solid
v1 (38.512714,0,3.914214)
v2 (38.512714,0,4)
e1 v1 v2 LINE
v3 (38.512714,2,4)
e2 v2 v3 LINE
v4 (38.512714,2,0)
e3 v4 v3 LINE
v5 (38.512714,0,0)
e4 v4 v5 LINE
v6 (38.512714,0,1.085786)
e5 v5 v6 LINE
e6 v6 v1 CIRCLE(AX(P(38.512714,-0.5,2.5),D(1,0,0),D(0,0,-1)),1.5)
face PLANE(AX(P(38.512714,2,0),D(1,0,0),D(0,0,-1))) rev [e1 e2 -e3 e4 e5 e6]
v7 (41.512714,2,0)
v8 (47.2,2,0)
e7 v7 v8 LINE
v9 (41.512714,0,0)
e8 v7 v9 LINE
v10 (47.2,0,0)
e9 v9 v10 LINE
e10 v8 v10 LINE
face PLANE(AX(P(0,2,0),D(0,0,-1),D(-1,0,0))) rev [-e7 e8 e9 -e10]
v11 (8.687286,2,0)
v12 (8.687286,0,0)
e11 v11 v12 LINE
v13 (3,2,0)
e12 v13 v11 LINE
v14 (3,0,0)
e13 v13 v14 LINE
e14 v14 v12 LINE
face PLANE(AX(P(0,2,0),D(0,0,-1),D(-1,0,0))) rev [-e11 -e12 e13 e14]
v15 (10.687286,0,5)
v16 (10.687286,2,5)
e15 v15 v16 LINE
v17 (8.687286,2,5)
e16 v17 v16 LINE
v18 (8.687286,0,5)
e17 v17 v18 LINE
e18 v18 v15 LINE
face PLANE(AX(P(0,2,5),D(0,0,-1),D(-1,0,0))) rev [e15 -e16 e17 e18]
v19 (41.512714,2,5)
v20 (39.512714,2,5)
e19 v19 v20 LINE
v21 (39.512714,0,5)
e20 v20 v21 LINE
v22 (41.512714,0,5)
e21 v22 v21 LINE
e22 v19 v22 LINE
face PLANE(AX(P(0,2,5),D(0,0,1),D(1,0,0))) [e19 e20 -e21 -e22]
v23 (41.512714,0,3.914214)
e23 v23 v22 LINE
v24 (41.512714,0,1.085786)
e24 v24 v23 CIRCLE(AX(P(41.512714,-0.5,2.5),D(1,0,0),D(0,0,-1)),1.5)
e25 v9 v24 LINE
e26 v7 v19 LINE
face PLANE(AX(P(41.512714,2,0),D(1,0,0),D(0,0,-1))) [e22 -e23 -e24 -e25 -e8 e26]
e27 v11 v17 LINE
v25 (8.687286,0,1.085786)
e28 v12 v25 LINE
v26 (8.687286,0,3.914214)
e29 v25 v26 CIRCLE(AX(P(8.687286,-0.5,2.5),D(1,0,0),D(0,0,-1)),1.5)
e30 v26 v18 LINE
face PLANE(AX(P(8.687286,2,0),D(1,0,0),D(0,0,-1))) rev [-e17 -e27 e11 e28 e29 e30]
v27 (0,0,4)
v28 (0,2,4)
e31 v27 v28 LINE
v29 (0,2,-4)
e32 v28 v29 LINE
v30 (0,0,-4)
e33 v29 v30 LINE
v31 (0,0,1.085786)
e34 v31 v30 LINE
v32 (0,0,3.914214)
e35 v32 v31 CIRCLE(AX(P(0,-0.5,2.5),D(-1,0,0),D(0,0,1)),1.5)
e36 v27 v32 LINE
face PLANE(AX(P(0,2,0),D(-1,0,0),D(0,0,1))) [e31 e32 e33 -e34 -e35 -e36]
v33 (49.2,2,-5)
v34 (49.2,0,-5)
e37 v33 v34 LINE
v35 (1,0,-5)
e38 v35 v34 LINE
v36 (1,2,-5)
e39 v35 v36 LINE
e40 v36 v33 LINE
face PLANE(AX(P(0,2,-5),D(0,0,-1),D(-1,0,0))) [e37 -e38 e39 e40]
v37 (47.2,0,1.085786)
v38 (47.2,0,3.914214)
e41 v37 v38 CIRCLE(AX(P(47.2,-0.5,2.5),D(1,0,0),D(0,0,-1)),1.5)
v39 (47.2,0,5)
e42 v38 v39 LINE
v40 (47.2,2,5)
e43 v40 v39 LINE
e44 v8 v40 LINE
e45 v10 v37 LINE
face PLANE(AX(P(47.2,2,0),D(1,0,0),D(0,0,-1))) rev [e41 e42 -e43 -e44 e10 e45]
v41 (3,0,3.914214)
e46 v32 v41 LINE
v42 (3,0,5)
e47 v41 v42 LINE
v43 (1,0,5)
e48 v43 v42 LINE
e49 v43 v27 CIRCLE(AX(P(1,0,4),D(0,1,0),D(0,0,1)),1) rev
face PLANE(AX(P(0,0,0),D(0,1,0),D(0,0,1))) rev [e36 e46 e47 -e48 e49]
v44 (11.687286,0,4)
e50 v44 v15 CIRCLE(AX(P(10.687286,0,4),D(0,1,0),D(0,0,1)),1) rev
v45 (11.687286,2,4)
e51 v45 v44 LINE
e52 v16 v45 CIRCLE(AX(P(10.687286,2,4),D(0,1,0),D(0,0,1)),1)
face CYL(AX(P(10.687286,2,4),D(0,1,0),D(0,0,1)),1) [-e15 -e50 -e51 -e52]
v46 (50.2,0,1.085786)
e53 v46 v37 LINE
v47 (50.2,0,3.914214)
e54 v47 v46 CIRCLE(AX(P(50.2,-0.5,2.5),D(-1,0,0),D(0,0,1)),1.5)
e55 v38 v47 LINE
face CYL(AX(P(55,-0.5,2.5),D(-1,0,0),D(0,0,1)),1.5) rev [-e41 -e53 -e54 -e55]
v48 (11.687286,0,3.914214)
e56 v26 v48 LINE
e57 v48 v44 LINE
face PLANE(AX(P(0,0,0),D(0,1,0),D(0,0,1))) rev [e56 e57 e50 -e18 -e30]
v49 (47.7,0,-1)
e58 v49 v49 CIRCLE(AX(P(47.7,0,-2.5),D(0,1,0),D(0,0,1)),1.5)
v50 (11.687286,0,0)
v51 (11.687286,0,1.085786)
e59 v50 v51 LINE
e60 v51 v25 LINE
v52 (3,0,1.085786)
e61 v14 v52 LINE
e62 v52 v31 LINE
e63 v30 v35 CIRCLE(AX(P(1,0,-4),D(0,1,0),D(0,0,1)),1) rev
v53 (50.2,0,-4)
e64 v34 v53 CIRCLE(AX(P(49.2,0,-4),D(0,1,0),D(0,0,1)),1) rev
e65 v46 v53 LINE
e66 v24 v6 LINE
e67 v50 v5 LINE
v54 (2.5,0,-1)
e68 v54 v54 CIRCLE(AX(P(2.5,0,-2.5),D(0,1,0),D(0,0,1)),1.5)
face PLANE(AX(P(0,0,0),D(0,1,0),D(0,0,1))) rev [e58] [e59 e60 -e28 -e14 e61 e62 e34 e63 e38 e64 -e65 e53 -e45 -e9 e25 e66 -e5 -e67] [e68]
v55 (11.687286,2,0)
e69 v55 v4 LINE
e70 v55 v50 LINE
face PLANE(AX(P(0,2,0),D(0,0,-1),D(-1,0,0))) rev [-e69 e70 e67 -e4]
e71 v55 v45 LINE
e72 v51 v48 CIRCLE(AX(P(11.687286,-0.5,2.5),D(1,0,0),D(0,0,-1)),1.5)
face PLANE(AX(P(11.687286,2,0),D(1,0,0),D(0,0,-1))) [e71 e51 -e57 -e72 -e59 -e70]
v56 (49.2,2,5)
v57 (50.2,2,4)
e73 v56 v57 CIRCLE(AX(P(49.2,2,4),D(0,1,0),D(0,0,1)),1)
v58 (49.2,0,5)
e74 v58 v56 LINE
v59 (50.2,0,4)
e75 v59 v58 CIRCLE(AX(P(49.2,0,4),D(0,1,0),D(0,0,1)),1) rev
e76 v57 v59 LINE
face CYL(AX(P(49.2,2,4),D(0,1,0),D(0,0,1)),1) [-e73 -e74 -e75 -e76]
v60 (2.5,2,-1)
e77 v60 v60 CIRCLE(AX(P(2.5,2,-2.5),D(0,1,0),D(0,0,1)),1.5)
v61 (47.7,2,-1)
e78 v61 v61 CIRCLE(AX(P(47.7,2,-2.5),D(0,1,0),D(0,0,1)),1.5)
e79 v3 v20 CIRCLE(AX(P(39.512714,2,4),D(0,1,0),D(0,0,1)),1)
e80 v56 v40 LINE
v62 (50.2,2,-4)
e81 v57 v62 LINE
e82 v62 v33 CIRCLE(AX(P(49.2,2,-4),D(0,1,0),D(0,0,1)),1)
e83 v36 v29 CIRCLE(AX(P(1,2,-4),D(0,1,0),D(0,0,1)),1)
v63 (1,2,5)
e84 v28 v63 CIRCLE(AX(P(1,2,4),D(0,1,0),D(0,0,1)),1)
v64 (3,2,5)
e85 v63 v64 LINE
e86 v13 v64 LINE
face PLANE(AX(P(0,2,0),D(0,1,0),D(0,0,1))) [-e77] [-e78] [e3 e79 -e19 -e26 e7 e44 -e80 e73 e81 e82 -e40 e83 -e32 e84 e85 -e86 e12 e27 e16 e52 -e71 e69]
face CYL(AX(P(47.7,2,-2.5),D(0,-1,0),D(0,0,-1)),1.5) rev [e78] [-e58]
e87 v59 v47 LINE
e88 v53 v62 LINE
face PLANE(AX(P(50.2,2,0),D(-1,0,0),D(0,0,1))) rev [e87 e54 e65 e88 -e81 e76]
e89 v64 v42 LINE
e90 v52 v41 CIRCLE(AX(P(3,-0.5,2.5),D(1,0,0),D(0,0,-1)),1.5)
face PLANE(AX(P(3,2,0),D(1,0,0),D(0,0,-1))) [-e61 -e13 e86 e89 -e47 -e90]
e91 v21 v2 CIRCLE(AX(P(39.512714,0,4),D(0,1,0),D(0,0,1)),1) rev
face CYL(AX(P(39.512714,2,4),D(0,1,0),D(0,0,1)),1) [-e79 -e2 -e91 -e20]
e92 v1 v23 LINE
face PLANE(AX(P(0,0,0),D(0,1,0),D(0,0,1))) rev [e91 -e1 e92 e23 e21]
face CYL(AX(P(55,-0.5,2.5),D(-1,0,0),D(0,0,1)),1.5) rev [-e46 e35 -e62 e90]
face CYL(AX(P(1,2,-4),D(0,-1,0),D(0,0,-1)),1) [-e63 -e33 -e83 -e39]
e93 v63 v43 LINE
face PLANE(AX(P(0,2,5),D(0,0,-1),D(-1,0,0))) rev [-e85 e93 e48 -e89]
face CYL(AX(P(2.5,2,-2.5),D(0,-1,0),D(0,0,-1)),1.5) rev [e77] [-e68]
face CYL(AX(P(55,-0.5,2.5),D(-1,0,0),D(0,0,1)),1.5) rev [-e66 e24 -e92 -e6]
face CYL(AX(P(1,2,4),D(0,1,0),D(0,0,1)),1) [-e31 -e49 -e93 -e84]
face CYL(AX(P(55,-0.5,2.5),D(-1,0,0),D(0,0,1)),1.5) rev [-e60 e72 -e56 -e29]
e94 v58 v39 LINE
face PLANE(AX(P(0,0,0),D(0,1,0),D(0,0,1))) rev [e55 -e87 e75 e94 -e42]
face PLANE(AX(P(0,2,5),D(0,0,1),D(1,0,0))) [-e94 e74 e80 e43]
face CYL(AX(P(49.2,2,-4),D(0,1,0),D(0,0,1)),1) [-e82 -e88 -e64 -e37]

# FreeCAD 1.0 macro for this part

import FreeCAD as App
import Part
import Sketcher
from FreeCAD import Vector


def edges_at(feature, points):
    """Names of the edges that pass closest to the given points."""
    edges = feature.Shape.Edges
    near = lambda p: min(range(len(edges)), key=lambda i: edges[i].distToShape(Part.Vertex(*p))[0])
    return sorted({f"Edge{near(p) + 1}" for p in points})


def add_polygon(sketch, points):
    """Adds a closed chain of lines whose ends are joined by coincident constraints."""
    first, n = sketch.GeometryCount, len(points)
    for a, b in zip(points, points[1:] + points[:1]):
        sketch.addGeometry(Part.LineSegment(App.Vector(*a, 0), App.Vector(*b, 0)), False)
    for i in range(n):
        sketch.addConstraint(Sketcher.Constraint("Coincident", first + i, 2, first + (i + 1) % n, 1))

doc = App.newDocument("Part")
params = doc.addObject("Spreadsheet::Sheet", "Params")
for row, (alias, value) in enumerate([
    ("sketch1_diameter", "3 mm"),
    ("sketch1_width", "3 mm"),
    ("sketch1_height", "10 mm"),
    ("sketch1_width2", "50.2 mm"),
    ("pad1_length", "2 mm"),
    ("sketch2_diameter", "3 mm"),
    ("pocket1_length", "55 mm"),
    ("fillet_radius", "1 mm"),
], start=1):
    params.set(f"A{row}", alias)
    params.set(f"B{row}", "=" + value)
    params.setAlias(f"B{row}", alias)

body = doc.addObject("PartDesign::Body", "Body")

# Sketch on XZ plane
sketch1 = body.newObject("Sketcher::SketchObject", "Sketch")
sketch1.AttachmentSupport = (doc.getObject("XZ_Plane"), [""])
sketch1.MapMode = "FlatFace"
add_polygon(sketch1, [(0, -5), (0, 5), (3, 5), (3, 0), (8.687286, 0), (8.687286, 5), (11.687286, 5), (11.687286, 0), (38.512714, 0), (38.512714, 5), (41.512714, 5), (41.512714, 0), (47.2, 0), (47.2, 5), (50.2, 5), (50.2, -5)])  # lines 0-15
sketch1.addGeometry(Part.Circle(Vector(2.5, -2.5, 0), Vector(0, 0, 1), 1.5), False)  # 16
sketch1.addGeometry(Part.Circle(Vector(47.7, -2.5, 0), Vector(0, 0, 1), 1.5), False)  # 17
sketch1.addConstraint(Sketcher.Constraint("Vertical", 0))
sketch1.addConstraint(Sketcher.Constraint("Horizontal", 1))
sketch1.addConstraint(Sketcher.Constraint("Vertical", 2))
sketch1.addConstraint(Sketcher.Constraint("Horizontal", 3))
sketch1.addConstraint(Sketcher.Constraint("Vertical", 4))
sketch1.addConstraint(Sketcher.Constraint("Horizontal", 5))
sketch1.addConstraint(Sketcher.Constraint("Vertical", 6))
sketch1.addConstraint(Sketcher.Constraint("Horizontal", 7))
sketch1.addConstraint(Sketcher.Constraint("Vertical", 8))
sketch1.addConstraint(Sketcher.Constraint("Horizontal", 9))
sketch1.addConstraint(Sketcher.Constraint("Vertical", 10))
sketch1.addConstraint(Sketcher.Constraint("Horizontal", 11))
sketch1.addConstraint(Sketcher.Constraint("Vertical", 12))
sketch1.addConstraint(Sketcher.Constraint("Horizontal", 13))
sketch1.addConstraint(Sketcher.Constraint("Vertical", 14))
sketch1.addConstraint(Sketcher.Constraint("Horizontal", 15))
sketch1.addConstraint(Sketcher.Constraint("Equal", 16, 17))
sketch1.addConstraint(Sketcher.Constraint("Symmetric", 0, 2, 15, 2, -1, 1))
sketch1.addConstraint(Sketcher.Constraint("PointOnObject", 2, 2, -1))
sketch1.addConstraint(Sketcher.Constraint("PointOnObject", 6, 2, -1))
sketch1.addConstraint(Sketcher.Constraint("PointOnObject", 10, 2, -1))
sketch1.addConstraint(Sketcher.Constraint("Horizontal", 16, 3, 17, 3))
sketch1.addConstraint(Sketcher.Constraint("Horizontal", 1, 2, 4, 2))
sketch1.addConstraint(Sketcher.Constraint("Horizontal", 5, 2, 8, 2))
sketch1.addConstraint(Sketcher.Constraint("Horizontal", 9, 2, 12, 2))
sketch1.addConstraint(Sketcher.Constraint("Equal", 1, 5))
sketch1.addConstraint(Sketcher.Constraint("Equal", 5, 9))
sketch1.addConstraint(Sketcher.Constraint("Equal", 3, 11))
sketch1.addConstraint(Sketcher.Constraint("Equal", 9, 13))
sketch1.addConstraint(Sketcher.Constraint("Diameter", 16, 3.0))
sketch1.addConstraint(Sketcher.Constraint("DistanceX", 1, 1, 1, 2, 3.0))
sketch1.addConstraint(Sketcher.Constraint("DistanceY", 0, 1, 0, 2, 10.0))
sketch1.addConstraint(Sketcher.Constraint("DistanceX", 15, 2, 15, 1, 50.2))
sketch1.addConstraint(Sketcher.Constraint("DistanceX", -1, 1, 16, 3, 2.5))
sketch1.addConstraint(Sketcher.Constraint("DistanceY", 16, 3, -1, 1, 2.5))
sketch1.addConstraint(Sketcher.Constraint("DistanceX", -1, 1, 17, 3, 47.7))
sketch1.addConstraint(Sketcher.Constraint("DistanceX", 7, 1, 7, 2, 26.825429))
sketch1.setExpression("Constraints[45]", "Params.sketch1_diameter")
sketch1.setExpression("Constraints[46]", "Params.sketch1_width")
sketch1.setExpression("Constraints[47]", "Params.sketch1_height")
sketch1.setExpression("Constraints[48]", "Params.sketch1_width2")
pad1 = body.newObject("PartDesign::Pad", "Pad")
pad1.Profile = sketch1
pad1.setExpression("Length", "Params.pad1_length")
pad1.Reversed = True

# Sketch on YZ plane
sketch2 = body.newObject("Sketcher::SketchObject", "Sketch001")
sketch2.AttachmentSupport = (doc.getObject("YZ_Plane"), [""])
sketch2.MapMode = "FlatFace"
sketch2.addGeometry(Part.Circle(Vector(-0.5, 2.5, 0), Vector(0, 0, 1), 1.5), False)
sketch2.addConstraint(Sketcher.Constraint("Diameter", 0, 3.0))
sketch2.addConstraint(Sketcher.Constraint("DistanceX", 0, 3, -1, 1, 0.5))
sketch2.addConstraint(Sketcher.Constraint("DistanceY", -1, 1, 0, 3, 2.5))
sketch2.setExpression("Constraints[0]", "Params.sketch2_diameter")
pocket1 = body.newObject("PartDesign::Pocket", "Pocket")
pocket1.Profile = sketch2
pocket1.setExpression("Length", "Params.pocket1_length")
pocket1.Reversed = True
doc.recompute()

fillet = body.newObject("PartDesign::Fillet", "Fillet")
fillet.Base = (pocket1, edges_at(pocket1, [
    (50.2, 1, -5),
    (50.2, 1, 5),
    (38.513, 1, 5),
    (11.687, 1, 5),
    (0, 1, 5),
    (0, 1, -5),
]))
fillet.setExpression("Radius", "Params.fillet_radius")

doc.recompute()
